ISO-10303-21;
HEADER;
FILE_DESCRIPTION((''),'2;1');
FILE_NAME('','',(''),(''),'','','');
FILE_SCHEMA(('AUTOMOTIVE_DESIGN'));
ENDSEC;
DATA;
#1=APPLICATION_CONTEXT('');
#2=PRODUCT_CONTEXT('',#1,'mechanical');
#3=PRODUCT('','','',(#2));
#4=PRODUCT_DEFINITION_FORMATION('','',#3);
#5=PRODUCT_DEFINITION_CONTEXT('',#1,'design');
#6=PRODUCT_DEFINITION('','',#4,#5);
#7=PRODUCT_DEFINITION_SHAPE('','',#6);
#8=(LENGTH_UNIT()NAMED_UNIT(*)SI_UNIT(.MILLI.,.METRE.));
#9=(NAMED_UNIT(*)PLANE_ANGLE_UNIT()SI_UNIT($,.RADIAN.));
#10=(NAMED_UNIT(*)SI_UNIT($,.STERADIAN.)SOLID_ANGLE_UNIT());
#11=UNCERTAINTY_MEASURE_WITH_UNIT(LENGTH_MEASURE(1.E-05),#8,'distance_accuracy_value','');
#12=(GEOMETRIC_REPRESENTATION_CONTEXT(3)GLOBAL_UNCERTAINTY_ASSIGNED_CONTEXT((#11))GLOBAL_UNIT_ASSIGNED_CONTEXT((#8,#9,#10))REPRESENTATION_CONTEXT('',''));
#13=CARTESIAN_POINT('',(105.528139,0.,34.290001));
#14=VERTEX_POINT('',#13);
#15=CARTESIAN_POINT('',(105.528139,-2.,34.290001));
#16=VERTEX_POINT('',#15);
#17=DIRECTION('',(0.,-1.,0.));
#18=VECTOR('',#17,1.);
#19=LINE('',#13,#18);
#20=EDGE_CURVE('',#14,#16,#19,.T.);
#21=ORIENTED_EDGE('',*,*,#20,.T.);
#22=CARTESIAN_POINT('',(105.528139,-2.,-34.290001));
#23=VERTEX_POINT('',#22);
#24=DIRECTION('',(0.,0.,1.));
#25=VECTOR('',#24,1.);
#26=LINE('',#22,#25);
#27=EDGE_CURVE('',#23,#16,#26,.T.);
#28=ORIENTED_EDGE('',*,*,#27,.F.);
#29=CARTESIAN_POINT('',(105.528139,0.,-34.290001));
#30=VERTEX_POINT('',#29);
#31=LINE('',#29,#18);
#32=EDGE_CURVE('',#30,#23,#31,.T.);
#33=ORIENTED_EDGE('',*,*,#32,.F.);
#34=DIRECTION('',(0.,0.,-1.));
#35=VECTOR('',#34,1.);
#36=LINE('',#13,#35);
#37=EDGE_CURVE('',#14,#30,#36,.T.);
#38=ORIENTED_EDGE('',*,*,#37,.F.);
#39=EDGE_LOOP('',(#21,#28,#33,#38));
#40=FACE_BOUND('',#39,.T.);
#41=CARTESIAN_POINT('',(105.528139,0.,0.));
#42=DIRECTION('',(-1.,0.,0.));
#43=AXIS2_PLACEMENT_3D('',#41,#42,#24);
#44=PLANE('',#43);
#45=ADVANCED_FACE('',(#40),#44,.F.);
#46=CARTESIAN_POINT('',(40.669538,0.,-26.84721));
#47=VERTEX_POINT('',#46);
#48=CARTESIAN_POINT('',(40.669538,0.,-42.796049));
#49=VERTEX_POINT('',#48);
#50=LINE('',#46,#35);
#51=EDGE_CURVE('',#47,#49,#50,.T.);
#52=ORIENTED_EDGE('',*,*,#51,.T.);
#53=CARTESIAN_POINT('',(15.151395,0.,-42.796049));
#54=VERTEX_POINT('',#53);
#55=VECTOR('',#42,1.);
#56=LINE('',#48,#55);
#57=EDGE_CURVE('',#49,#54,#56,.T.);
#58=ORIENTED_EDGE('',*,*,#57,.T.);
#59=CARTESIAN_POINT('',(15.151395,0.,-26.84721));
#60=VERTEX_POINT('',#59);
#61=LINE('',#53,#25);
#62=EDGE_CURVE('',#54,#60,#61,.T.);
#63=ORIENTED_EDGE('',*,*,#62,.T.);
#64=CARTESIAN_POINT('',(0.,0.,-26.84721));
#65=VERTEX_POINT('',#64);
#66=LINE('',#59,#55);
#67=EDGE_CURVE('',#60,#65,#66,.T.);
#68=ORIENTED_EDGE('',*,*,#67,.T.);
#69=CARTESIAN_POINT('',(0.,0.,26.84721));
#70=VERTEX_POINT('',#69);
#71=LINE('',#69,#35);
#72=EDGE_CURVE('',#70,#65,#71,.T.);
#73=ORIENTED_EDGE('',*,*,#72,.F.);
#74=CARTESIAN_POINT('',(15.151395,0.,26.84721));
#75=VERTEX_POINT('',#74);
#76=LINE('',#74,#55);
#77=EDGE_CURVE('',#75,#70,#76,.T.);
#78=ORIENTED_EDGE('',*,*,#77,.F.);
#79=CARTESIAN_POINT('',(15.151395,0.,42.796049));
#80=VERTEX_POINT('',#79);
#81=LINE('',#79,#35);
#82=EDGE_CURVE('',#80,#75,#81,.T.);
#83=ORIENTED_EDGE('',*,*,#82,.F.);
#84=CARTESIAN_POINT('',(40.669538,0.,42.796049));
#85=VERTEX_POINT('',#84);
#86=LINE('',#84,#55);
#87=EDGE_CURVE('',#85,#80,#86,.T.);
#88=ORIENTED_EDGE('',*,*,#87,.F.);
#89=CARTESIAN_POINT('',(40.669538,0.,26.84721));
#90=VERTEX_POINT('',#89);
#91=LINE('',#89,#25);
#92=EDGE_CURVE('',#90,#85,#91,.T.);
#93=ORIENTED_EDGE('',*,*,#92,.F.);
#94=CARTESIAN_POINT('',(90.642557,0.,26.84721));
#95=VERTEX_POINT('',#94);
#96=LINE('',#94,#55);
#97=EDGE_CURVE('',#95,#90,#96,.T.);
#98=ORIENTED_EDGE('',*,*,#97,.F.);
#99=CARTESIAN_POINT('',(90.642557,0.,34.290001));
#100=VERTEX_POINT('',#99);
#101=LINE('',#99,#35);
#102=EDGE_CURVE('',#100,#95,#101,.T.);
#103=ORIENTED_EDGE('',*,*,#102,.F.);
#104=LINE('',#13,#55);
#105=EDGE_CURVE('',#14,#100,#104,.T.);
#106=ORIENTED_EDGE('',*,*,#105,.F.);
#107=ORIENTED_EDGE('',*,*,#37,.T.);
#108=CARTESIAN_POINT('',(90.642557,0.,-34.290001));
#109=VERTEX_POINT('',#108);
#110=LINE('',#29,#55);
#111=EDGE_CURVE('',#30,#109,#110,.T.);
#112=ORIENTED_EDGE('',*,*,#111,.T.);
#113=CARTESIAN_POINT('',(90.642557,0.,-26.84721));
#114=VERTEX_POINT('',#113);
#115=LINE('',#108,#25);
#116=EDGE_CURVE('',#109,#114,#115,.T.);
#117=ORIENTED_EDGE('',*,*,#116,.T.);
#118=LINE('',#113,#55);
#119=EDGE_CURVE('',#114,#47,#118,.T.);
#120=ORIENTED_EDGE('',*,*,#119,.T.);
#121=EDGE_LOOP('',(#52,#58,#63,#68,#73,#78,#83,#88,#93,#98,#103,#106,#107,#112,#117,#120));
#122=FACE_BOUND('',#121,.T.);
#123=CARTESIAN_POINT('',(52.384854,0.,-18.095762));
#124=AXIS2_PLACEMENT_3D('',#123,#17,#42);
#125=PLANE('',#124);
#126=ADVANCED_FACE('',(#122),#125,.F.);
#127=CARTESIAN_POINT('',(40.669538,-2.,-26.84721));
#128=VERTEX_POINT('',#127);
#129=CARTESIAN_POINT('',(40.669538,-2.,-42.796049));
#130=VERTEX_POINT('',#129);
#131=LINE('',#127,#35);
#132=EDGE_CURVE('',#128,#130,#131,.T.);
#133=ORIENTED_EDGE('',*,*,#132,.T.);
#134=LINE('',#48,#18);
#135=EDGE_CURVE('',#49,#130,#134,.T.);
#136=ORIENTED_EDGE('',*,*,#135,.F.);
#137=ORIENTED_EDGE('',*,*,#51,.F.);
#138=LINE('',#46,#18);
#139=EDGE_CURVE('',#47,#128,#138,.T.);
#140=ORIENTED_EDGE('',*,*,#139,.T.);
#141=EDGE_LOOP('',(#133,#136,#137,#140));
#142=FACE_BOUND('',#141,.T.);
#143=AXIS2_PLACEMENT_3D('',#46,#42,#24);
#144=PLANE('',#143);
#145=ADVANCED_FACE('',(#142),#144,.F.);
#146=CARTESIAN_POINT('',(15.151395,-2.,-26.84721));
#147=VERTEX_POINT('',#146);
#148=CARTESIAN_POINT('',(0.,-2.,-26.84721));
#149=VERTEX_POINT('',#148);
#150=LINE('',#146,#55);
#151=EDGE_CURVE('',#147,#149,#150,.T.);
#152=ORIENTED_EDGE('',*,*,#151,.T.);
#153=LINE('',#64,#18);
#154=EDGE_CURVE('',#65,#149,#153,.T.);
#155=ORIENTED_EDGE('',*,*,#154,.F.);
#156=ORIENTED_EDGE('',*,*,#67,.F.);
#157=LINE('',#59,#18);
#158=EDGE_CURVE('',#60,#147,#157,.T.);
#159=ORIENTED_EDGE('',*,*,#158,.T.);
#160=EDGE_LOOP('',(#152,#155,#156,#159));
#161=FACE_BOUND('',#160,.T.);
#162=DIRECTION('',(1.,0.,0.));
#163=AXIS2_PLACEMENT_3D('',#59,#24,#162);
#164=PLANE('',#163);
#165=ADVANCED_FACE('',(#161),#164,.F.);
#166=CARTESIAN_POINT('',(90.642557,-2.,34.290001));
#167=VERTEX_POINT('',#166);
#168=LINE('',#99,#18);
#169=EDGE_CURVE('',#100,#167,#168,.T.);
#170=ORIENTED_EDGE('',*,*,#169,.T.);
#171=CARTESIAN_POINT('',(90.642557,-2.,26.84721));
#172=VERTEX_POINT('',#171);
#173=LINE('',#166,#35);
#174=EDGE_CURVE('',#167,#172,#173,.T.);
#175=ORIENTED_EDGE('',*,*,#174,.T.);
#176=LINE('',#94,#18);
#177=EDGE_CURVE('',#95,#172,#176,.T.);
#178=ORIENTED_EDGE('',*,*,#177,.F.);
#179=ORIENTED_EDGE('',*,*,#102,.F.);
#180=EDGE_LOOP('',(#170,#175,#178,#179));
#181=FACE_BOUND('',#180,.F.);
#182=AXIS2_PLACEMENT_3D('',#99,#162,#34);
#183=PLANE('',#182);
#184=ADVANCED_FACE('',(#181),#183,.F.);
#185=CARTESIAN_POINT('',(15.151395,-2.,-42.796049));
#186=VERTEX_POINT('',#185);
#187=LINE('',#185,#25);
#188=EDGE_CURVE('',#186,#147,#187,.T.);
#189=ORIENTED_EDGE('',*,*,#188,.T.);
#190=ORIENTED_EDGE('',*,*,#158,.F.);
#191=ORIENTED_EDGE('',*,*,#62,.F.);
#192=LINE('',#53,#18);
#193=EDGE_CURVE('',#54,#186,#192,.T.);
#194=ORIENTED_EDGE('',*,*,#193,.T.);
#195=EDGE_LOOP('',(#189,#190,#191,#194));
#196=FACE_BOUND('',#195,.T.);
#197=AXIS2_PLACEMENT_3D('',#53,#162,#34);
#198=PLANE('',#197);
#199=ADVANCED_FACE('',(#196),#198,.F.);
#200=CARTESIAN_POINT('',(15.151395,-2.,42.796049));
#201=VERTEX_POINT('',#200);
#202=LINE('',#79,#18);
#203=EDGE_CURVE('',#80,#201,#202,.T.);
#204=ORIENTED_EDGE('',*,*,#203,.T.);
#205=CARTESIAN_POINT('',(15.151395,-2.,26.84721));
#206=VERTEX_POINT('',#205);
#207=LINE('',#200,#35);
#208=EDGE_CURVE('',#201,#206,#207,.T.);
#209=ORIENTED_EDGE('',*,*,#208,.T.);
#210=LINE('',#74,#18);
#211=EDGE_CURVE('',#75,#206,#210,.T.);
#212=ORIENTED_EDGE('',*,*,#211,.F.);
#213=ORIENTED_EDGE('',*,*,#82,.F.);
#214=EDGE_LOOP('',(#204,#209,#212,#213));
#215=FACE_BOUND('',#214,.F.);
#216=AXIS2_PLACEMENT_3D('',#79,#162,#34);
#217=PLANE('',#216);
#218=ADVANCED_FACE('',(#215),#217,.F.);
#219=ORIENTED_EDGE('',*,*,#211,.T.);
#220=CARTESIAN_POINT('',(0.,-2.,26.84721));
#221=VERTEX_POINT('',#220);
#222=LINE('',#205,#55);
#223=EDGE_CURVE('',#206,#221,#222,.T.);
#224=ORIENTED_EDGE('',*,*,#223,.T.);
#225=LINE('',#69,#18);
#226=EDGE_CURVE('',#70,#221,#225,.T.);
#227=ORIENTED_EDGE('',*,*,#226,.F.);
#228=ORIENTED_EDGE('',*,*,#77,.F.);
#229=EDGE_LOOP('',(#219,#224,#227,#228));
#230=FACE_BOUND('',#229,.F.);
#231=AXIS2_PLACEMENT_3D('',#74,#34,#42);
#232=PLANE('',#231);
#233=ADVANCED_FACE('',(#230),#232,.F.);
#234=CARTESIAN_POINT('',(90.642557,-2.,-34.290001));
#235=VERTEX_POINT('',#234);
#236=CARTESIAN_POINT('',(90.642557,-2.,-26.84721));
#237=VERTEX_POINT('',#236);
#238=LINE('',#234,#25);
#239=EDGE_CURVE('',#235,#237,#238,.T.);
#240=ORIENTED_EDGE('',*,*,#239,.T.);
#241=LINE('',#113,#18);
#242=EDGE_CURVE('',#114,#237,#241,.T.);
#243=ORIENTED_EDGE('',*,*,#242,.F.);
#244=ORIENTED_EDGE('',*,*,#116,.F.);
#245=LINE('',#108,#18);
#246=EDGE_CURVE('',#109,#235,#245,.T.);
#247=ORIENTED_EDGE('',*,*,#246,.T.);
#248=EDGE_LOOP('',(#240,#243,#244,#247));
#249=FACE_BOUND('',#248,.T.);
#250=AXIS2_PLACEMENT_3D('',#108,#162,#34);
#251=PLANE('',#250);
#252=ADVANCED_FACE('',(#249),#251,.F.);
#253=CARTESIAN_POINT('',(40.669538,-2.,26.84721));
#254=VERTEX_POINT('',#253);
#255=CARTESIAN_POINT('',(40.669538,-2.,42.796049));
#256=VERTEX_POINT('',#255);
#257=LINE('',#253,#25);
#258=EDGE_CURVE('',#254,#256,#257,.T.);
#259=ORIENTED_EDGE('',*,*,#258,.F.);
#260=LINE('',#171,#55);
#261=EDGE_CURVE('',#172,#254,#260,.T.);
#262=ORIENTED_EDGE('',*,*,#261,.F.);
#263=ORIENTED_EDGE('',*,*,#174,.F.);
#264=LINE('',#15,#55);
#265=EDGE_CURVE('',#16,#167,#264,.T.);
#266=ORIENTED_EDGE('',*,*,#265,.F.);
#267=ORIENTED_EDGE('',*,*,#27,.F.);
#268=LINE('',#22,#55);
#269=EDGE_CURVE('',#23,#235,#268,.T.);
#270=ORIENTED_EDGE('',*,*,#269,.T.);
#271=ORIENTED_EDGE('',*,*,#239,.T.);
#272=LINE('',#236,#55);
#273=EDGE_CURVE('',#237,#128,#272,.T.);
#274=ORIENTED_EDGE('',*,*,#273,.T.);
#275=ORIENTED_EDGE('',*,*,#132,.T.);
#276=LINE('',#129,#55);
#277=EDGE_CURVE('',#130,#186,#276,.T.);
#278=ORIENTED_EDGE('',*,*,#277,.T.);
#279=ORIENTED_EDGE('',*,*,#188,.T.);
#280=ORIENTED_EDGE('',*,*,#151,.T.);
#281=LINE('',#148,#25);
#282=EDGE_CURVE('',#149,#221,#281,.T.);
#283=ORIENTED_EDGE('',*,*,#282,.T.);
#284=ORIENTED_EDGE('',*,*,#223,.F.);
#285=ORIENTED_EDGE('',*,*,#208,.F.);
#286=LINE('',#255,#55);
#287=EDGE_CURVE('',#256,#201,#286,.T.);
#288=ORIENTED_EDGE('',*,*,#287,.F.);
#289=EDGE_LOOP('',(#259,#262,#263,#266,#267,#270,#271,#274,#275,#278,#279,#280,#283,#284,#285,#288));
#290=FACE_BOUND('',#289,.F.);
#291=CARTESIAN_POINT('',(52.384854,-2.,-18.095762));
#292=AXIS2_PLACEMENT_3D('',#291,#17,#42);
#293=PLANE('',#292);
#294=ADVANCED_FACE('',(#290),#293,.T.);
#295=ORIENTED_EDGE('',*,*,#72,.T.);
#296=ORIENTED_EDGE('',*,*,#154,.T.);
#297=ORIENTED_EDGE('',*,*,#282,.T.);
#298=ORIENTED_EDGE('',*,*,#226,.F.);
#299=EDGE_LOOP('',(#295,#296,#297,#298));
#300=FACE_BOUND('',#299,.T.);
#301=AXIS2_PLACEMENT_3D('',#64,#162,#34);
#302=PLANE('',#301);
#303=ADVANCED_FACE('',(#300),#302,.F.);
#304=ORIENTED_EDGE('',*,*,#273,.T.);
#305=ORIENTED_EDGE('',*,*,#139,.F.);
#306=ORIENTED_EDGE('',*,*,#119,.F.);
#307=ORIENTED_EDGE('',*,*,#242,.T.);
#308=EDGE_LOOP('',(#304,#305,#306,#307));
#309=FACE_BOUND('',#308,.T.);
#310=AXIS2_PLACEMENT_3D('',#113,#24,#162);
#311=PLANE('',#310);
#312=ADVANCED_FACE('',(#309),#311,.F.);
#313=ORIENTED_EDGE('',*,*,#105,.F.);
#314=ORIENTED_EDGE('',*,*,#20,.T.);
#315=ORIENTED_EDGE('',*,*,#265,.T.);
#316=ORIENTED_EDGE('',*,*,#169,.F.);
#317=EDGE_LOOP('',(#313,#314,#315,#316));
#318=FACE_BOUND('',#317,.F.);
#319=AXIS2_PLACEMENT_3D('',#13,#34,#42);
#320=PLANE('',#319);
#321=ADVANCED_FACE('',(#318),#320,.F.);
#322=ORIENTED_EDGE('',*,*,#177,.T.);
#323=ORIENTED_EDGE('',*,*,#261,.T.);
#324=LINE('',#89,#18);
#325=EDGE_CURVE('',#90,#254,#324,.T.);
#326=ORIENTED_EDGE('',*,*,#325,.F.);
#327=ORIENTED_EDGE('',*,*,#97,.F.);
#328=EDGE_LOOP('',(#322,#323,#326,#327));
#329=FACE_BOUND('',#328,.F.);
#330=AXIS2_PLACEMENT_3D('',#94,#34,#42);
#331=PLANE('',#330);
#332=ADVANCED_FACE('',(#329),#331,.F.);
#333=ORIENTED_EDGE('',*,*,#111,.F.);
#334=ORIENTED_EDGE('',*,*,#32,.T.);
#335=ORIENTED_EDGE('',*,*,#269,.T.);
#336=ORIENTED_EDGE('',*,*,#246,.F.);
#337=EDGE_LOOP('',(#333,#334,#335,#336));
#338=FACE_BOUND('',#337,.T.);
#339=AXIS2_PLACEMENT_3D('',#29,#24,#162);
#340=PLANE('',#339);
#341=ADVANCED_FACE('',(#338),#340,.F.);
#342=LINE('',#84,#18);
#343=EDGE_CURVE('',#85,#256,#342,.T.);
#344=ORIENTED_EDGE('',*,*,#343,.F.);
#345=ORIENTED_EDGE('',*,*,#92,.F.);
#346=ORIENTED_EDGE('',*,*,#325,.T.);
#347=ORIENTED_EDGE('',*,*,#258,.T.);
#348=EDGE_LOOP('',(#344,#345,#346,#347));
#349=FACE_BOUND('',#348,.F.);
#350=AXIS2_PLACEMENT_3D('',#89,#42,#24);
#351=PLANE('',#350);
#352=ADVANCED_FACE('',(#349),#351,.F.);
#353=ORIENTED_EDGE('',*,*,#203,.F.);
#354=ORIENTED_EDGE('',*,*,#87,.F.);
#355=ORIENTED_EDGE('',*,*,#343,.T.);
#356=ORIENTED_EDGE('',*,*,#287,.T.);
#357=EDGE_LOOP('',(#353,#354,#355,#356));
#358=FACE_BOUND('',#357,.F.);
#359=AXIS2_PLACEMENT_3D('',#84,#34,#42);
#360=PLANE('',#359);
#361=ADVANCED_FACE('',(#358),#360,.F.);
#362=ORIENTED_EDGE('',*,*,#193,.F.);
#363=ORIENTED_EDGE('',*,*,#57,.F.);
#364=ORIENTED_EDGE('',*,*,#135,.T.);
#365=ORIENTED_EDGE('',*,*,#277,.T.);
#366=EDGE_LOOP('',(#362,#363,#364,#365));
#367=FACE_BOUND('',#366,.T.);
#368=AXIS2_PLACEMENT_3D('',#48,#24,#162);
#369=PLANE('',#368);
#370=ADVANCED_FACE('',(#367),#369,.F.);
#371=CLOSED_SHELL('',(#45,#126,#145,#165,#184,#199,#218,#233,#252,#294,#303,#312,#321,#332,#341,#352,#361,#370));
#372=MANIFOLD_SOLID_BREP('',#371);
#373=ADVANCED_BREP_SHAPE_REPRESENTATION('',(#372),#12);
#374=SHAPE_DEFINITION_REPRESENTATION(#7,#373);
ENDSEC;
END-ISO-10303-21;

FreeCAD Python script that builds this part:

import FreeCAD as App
import Part
import Sketcher

V = App.Vector

doc = App.newDocument("Part")
body = doc.addObject("PartDesign::Body", "Body")

# Sketch on XZ plane
sketch1 = body.newObject("Sketcher::SketchObject", "Sketch")
sketch1.AttachmentSupport = (doc.getObject("XZ_Plane"), [""])
sketch1.MapMode = "FlatFace"
sketch1.addGeometry([
    Part.LineSegment(V(0, 27, 0), V(0, 0, 0)),  # 0
    Part.LineSegment(V(0, 0, 0), V(106, 0, 0)),  # 1
    Part.LineSegment(V(106, 0, 0), V(106, 34, 0)),  # 2
    Part.LineSegment(V(106, 34, 0), V(91, 34, 0)),  # 3
    Part.LineSegment(V(91, 34, 0), V(91, 27, 0)),  # 4
    Part.LineSegment(V(91, 27, 0), V(41, 27, 0)),  # 5
    Part.LineSegment(V(41, 27, 0), V(41, 43, 0)),  # 6
    Part.LineSegment(V(41, 43, 0), V(15, 43, 0)),  # 7
    Part.LineSegment(V(15, 43, 0), V(15, 27, 0)),  # 8
    Part.LineSegment(V(15, 27, 0), V(0, 27, 0)),  # 9
], False)
sketch1.addConstraint([
    Sketcher.Constraint("Coincident", 0, 2, 1, 1),
    Sketcher.Constraint("Coincident", 1, 2, 2, 1),
    Sketcher.Constraint("Coincident", 2, 2, 3, 1),
    Sketcher.Constraint("Coincident", 3, 2, 4, 1),
    Sketcher.Constraint("Coincident", 4, 2, 5, 1),
    Sketcher.Constraint("Coincident", 5, 2, 6, 1),
    Sketcher.Constraint("Coincident", 6, 2, 7, 1),
    Sketcher.Constraint("Coincident", 7, 2, 8, 1),
    Sketcher.Constraint("Coincident", 8, 2, 9, 1),
    Sketcher.Constraint("Coincident", 9, 2, 0, 1),
    Sketcher.Constraint("Vertical", 0),
    Sketcher.Constraint("Horizontal", 1),
    Sketcher.Constraint("Vertical", 2),
    Sketcher.Constraint("Horizontal", 3),
    Sketcher.Constraint("Vertical", 4),
    Sketcher.Constraint("Horizontal", 5),
    Sketcher.Constraint("Vertical", 6),
    Sketcher.Constraint("Horizontal", 7),
    Sketcher.Constraint("Vertical", 8),
    Sketcher.Constraint("Horizontal", 9),
    Sketcher.Constraint("Coincident", 0, 2, -1, 1),
    Sketcher.Constraint("Horizontal", 5, 2, 8, 2),
    Sketcher.Constraint("DistanceY", 2, 1, 2, 2, 34.290001),
    Sketcher.Constraint("DistanceX", 1, 1, 1, 2, 105.528139),
    Sketcher.Constraint("DistanceX", 5, 2, 5, 1, 49.973019),
    Sketcher.Constraint("DistanceY", 0, 2, 0, 1, 26.84721),
    Sketcher.Constraint("DistanceY", 6, 1, 6, 2, 15.948839),
    Sketcher.Constraint("DistanceX", 5, 2, 2, 2, 64.858601),
    Sketcher.Constraint("DistanceX", 7, 2, 7, 1, 25.518143),
])
pad1 = body.newObject("PartDesign::Pad", "Pad")
pad1.Profile = sketch1
pad1.Length = 2
body2 = doc.addObject("PartDesign::Body", "Body001")
doc.recompute()

body2.BaseFeature = body
doc.recompute()

mirroring = doc.addObject("Part::Mirroring", "Mirroring")
mirroring.Source = body
mirroring.Base = V(0, 0, 0)
mirroring.Normal = V(0, 0, 1)
body3 = doc.addObject("PartDesign::Body", "Body002")
body3.BaseFeature = mirroring
boolean = body2.newObject("PartDesign::Boolean", "Boolean")
boolean.Type = "Fuse"
boolean.addObjects([body3])
doc.recompute()
mirroring.Visibility = False

doc.recompute()
